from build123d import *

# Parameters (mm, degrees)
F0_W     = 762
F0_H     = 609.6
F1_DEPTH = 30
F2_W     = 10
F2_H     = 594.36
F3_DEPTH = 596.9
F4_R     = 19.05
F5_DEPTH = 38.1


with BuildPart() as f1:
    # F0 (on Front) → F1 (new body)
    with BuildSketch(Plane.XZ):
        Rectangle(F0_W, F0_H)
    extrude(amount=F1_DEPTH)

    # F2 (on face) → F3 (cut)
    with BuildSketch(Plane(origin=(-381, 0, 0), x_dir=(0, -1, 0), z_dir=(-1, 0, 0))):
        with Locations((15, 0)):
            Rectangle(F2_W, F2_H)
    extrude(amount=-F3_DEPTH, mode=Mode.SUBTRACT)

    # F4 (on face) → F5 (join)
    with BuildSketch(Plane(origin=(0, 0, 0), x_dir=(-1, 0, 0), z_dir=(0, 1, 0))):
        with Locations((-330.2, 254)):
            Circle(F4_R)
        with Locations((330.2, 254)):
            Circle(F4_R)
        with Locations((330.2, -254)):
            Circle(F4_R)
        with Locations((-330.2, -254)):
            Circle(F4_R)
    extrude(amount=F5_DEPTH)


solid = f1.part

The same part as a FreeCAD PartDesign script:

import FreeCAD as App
import Part
import Sketcher
from FreeCAD import Vector
Q = App.Units.Quantity


def add_polygon(sketch, points):
    """Adds a closed chain of lines whose ends are joined by coincident constraints."""
    first, n = sketch.GeometryCount, len(points)
    for a, b in zip(points, points[1:] + points[:1]):
        sketch.addGeometry(Part.LineSegment(App.Vector(*a, 0), App.Vector(*b, 0)), False)
    for i in range(n):
        sketch.addConstraint(Sketcher.Constraint("Coincident", first + i, 2, first + (i + 1) % n, 1))

doc = App.newDocument("Part")
body = doc.addObject("PartDesign::Body", "Body")

# Sketch on XZ plane
sketch1 = body.newObject("Sketcher::SketchObject", "Sketch")
sketch1.AttachmentSupport = (doc.getObject("XZ_Plane"), [""])
sketch1.MapMode = "FlatFace"
add_polygon(sketch1, [(-381, 304.8), (-381, -304.8), (381, -304.8), (381, 304.8)])  # lines 0-3
sketch1.addConstraint([
    Sketcher.Constraint("Vertical", 0),
    Sketcher.Constraint("Horizontal", 1),
    Sketcher.Constraint("Vertical", 2),
    Sketcher.Constraint("Horizontal", 3),
    Sketcher.Constraint("Symmetric", 0, 2, 2, 2, -1, 1),
    Sketcher.Constraint("DistanceX", 1, 1, 1, 2, Q("30 in")),
    Sketcher.Constraint("DistanceY", 0, 2, 0, 1, Q("24 in")),
])
pad1 = body.newObject("PartDesign::Pad", "Pad")
pad1.Profile = sketch1
pad1.Length = 30

# Sketch on YZ plane
sketch2 = body.newObject("Sketcher::SketchObject", "Sketch001")
sketch2.AttachmentSupport = (doc.getObject("YZ_Plane"), [""])
sketch2.MapMode = "FlatFace"
sketch2.AttachmentOffset = App.Placement(Vector(0, 0, -15 * 25.4), App.Rotation())
add_polygon(sketch2, [(-10, 297.18), (-10, -297.18), (-20, -297.18), (-20, 297.18)])  # lines 0-3
sketch2.addConstraint([
    Sketcher.Constraint("Vertical", 0),
    Sketcher.Constraint("Horizontal", 1),
    Sketcher.Constraint("Vertical", 2),
    Sketcher.Constraint("Horizontal", 3),
    Sketcher.Constraint("DistanceY", 0, 2, 0, 1, Q("23.4 in")),
    Sketcher.Constraint("DistanceY", 0, 2, -1, 1, Q("11.7 in")),
    Sketcher.Constraint("DistanceX", 1, 2, 1, 1, 10.0),
    Sketcher.Constraint("DistanceX", 0, 2, -1, 1, 10.0),
])
pocket1 = body.newObject("PartDesign::Pocket", "Pocket")
pocket1.Profile = sketch2
pocket1.Length = Q("23.5 in")
pocket1.Reversed = True

# Sketch on XZ plane
sketch3 = body.newObject("Sketcher::SketchObject", "Sketch002")
sketch3.AttachmentSupport = (doc.getObject("XZ_Plane"), [""])
sketch3.MapMode = "FlatFace"
sketch3.addGeometry([
    Part.Circle(Vector(330.2, 254, 0), Vector(0, 0, 1), 19.05),
    Part.Circle(Vector(-330.2, 254, 0), Vector(0, 0, 1), 19.05),
    Part.Circle(Vector(-330.2, -254, 0), Vector(0, 0, 1), 19.05),
    Part.Circle(Vector(330.2, -254, 0), Vector(0, 0, 1), 19.05),
], False)
sketch3.addConstraint([
    Sketcher.Constraint("Equal", 0, 1),
    Sketcher.Constraint("Equal", 1, 2),
    Sketcher.Constraint("Equal", 2, 3),
    Sketcher.Constraint("Symmetric", 0, 3, 2, 3, -1, 1),
    Sketcher.Constraint("Symmetric", 1, 3, 3, 3, -1, 1),
    Sketcher.Constraint("Symmetric", 0, 3, 1, 3, -2),
    Sketcher.Constraint("Diameter", 0, Q("1.5 in")),
    Sketcher.Constraint("DistanceX", -1, 1, 0, 3, Q("13 in")),
    Sketcher.Constraint("DistanceY", -1, 1, 0, 3, Q("10 in")),
])
pad2 = body.newObject("PartDesign::Pad", "Pad001")
pad2.Profile = sketch3
pad2.Length = Q("1.5 in")
pad2.Reversed = True

doc.recompute()
